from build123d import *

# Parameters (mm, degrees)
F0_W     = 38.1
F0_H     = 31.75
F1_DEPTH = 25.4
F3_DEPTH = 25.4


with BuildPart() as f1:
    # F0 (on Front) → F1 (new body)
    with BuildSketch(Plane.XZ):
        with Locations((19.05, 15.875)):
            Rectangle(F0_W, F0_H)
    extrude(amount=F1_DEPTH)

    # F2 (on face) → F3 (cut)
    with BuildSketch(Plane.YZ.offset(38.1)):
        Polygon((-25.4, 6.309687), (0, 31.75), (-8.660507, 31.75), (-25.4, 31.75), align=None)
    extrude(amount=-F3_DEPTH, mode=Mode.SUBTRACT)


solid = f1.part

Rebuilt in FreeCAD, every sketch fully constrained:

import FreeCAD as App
import Part
import Sketcher
from FreeCAD import Vector
Q = App.Units.Quantity


def add_polygon(sketch, points):
    """Adds a closed chain of lines whose ends are joined by coincident constraints."""
    first, n = sketch.GeometryCount, len(points)
    for a, b in zip(points, points[1:] + points[:1]):
        sketch.addGeometry(Part.LineSegment(App.Vector(*a, 0), App.Vector(*b, 0)), False)
    for i in range(n):
        sketch.addConstraint(Sketcher.Constraint("Coincident", first + i, 2, first + (i + 1) % n, 1))

doc = App.newDocument("Part")
body = doc.addObject("PartDesign::Body", "Body")

# Sketch on XZ plane
sketch1 = body.newObject("Sketcher::SketchObject", "Sketch")
sketch1.AttachmentSupport = (doc.getObject("XZ_Plane"), [""])
sketch1.MapMode = "FlatFace"
add_polygon(sketch1, [(0, 31.75), (0, 0), (38.1, 0), (38.1, 31.75)])  # lines 0-3
sketch1.addConstraint(Sketcher.Constraint("Vertical", 0))
sketch1.addConstraint(Sketcher.Constraint("Horizontal", 1))
sketch1.addConstraint(Sketcher.Constraint("Vertical", 2))
sketch1.addConstraint(Sketcher.Constraint("Horizontal", 3))
sketch1.addConstraint(Sketcher.Constraint("Coincident", 0, 2, -1, 1))
sketch1.addConstraint(Sketcher.Constraint("DistanceX", 1, 1, 1, 2, Q("1.5 in")))
sketch1.addConstraint(Sketcher.Constraint("DistanceY", 0, 2, 0, 1, Q("1.25 in")))
pad1 = body.newObject("PartDesign::Pad", "Pad")
pad1.Profile = sketch1
pad1.Length = Q("1 in")

# Sketch on YZ plane
sketch2 = body.newObject("Sketcher::SketchObject", "Sketch001")
sketch2.AttachmentSupport = (doc.getObject("YZ_Plane"), [""])
sketch2.MapMode = "FlatFace"
sketch2.AttachmentOffset = App.Placement(Vector(0, 0, 1.5 * 25.4), App.Rotation())
add_polygon(sketch2, [(-25.4, 6.309687), (0, 31.75), (-25.4, 31.75)])  # lines 0-2
sketch2.addConstraint(Sketcher.Constraint("Horizontal", 1))
sketch2.addConstraint(Sketcher.Constraint("Vertical", 2))
sketch2.addConstraint(Sketcher.Constraint("PointOnObject", 0, 2, -2))
sketch2.addConstraint(Sketcher.Constraint("DistanceX", 1, 2, 1, 1, Q("1 in")))
sketch2.addConstraint(Sketcher.Constraint("DistanceY", -1, 1, 0, 2, Q("1.25 in")))
sketch2.addConstraint(Sketcher.Constraint("Distance", 0, 35.949541))
pocket1 = body.newObject("PartDesign::Pocket", "Pocket")
pocket1.Profile = sketch2
pocket1.Length = Q("1 in")

doc.recompute()
